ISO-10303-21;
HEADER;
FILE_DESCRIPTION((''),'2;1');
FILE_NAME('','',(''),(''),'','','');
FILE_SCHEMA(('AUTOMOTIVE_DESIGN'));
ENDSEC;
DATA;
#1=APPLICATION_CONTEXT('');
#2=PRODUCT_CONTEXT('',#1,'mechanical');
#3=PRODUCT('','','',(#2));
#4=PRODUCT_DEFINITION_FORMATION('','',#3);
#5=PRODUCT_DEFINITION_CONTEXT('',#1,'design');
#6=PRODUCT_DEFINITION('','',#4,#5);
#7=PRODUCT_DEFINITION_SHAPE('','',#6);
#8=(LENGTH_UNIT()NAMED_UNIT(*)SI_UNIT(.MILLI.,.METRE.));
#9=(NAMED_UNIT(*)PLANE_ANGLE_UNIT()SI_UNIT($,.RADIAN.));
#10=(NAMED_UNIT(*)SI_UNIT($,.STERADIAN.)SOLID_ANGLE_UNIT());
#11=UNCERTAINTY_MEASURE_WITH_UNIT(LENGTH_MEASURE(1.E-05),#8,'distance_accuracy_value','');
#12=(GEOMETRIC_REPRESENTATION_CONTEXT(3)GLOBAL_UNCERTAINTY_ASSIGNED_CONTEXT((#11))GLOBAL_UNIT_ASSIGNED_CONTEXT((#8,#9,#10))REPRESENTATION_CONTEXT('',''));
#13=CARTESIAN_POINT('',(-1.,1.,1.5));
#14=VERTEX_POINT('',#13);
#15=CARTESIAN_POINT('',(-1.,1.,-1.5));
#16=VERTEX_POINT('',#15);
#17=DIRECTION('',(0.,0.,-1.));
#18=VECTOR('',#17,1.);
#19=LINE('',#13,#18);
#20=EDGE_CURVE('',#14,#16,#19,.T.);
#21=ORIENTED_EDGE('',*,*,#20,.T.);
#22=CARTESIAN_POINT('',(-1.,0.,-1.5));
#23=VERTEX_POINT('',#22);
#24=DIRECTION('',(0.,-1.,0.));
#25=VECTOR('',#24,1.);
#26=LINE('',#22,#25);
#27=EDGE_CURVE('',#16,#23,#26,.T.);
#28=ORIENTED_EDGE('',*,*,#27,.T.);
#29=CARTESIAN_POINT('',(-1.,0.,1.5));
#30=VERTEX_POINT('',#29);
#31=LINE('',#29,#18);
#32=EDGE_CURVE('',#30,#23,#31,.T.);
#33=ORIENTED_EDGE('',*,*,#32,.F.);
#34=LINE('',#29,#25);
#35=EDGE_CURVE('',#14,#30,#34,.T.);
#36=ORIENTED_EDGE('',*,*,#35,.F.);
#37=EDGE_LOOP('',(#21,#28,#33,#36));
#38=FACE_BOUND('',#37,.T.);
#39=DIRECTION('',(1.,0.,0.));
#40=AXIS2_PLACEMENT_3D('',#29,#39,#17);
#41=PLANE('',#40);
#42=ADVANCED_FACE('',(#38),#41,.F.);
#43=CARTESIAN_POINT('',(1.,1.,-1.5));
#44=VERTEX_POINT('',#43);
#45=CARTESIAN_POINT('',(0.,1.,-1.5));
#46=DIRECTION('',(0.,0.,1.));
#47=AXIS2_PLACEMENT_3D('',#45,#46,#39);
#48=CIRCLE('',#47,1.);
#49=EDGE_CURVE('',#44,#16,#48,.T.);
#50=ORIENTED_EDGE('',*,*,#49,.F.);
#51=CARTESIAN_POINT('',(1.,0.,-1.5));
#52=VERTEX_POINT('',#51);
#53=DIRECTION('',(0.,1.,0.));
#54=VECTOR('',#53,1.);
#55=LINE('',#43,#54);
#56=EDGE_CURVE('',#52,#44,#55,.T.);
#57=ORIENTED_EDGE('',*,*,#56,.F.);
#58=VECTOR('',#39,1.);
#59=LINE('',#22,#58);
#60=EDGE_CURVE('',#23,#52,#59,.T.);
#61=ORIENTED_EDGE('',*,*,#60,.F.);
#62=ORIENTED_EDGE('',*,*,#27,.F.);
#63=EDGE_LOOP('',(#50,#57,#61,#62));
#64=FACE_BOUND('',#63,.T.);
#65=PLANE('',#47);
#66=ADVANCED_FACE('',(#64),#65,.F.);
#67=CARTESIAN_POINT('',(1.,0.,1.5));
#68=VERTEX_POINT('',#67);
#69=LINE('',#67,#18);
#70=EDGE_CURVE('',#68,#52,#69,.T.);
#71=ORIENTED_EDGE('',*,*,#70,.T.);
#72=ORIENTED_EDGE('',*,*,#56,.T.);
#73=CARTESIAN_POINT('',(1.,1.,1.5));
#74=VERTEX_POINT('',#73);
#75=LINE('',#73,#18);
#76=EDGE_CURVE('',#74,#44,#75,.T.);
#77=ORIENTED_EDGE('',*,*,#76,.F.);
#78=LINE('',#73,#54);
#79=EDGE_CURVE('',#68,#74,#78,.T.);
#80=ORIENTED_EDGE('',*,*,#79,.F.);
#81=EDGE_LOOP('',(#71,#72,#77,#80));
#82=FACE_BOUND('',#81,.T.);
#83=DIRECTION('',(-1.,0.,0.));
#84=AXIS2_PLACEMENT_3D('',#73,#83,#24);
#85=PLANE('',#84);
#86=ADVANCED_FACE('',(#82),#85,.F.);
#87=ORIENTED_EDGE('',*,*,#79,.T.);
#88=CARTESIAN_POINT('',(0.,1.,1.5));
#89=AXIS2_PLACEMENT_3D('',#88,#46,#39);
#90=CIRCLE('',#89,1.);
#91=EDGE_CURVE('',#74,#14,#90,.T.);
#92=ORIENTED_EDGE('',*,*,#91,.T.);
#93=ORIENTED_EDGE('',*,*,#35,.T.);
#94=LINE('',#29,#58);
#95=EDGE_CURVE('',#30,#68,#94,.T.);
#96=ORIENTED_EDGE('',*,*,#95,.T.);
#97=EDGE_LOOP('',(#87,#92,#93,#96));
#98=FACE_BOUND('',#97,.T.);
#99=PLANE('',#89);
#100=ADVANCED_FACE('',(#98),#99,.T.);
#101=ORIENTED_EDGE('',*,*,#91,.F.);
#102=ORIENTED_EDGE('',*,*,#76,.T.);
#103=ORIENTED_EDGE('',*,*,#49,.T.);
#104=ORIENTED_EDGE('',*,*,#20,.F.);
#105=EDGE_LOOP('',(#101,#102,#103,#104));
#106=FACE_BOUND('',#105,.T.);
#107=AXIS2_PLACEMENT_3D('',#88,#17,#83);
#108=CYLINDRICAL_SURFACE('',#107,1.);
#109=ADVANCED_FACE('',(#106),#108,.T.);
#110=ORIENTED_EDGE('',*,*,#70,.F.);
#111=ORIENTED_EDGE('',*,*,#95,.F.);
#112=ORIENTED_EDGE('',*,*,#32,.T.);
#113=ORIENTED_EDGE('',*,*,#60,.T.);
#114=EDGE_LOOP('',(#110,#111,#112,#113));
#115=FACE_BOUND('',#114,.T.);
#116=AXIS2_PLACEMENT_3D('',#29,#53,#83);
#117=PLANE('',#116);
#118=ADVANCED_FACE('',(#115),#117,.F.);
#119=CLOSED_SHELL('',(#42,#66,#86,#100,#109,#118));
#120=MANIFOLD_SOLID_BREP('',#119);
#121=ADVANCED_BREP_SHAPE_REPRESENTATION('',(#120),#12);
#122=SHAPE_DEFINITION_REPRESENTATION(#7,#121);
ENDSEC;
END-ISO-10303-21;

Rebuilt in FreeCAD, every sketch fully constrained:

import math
import FreeCAD as App
import Part
import Sketcher
Q = App.Units.Quantity

doc = App.newDocument("Part")
body = doc.addObject("PartDesign::Body", "Body")

sketch1 = body.newObject("Sketcher::SketchObject", "Sketch")
sketch1.AttachmentSupport = (doc.getObject("XY_Plane"), [""])
sketch1.MapMode = "FlatFace"
sketch1.addGeometry([
    Part.LineSegment(App.Vector(-1, 0, 0), App.Vector(1, 0, 0)),
    Part.LineSegment(App.Vector(1, 0, 0), App.Vector(1, 1, 0)),
    Part.ArcOfCircle(Part.Circle(App.Vector(0, 1, 0), App.Vector(0, 0, 1), 1), math.radians(0), math.radians(180)),
    Part.LineSegment(App.Vector(-1, 1, 0), App.Vector(-1, 0, 0)),
], False)
sketch1.addConstraint([
    Sketcher.Constraint("Coincident", 0, 2, 1, 1),
    Sketcher.Constraint("Tangent", 1, 2, 2, 1),
    Sketcher.Constraint("Tangent", 2, 2, 3, 1),
    Sketcher.Constraint("Coincident", 3, 2, 0, 1),
    Sketcher.Constraint("Horizontal", 0),
    Sketcher.Constraint("Vertical", 1),
    Sketcher.Constraint("Vertical", 3),
    Sketcher.Constraint("Symmetric", 0, 2, 3, 2, -1, 1),
    Sketcher.Constraint("Radius", 2, Q("1 mm")),
    Sketcher.Constraint("DistanceY", 1, 1, 1, 2, Q("1 mm")),
])
pad1 = body.newObject("PartDesign::Pad", "Pad")
pad1.Profile = sketch1
pad1.Length = 3
pad1.Midplane = True

doc.recompute()
